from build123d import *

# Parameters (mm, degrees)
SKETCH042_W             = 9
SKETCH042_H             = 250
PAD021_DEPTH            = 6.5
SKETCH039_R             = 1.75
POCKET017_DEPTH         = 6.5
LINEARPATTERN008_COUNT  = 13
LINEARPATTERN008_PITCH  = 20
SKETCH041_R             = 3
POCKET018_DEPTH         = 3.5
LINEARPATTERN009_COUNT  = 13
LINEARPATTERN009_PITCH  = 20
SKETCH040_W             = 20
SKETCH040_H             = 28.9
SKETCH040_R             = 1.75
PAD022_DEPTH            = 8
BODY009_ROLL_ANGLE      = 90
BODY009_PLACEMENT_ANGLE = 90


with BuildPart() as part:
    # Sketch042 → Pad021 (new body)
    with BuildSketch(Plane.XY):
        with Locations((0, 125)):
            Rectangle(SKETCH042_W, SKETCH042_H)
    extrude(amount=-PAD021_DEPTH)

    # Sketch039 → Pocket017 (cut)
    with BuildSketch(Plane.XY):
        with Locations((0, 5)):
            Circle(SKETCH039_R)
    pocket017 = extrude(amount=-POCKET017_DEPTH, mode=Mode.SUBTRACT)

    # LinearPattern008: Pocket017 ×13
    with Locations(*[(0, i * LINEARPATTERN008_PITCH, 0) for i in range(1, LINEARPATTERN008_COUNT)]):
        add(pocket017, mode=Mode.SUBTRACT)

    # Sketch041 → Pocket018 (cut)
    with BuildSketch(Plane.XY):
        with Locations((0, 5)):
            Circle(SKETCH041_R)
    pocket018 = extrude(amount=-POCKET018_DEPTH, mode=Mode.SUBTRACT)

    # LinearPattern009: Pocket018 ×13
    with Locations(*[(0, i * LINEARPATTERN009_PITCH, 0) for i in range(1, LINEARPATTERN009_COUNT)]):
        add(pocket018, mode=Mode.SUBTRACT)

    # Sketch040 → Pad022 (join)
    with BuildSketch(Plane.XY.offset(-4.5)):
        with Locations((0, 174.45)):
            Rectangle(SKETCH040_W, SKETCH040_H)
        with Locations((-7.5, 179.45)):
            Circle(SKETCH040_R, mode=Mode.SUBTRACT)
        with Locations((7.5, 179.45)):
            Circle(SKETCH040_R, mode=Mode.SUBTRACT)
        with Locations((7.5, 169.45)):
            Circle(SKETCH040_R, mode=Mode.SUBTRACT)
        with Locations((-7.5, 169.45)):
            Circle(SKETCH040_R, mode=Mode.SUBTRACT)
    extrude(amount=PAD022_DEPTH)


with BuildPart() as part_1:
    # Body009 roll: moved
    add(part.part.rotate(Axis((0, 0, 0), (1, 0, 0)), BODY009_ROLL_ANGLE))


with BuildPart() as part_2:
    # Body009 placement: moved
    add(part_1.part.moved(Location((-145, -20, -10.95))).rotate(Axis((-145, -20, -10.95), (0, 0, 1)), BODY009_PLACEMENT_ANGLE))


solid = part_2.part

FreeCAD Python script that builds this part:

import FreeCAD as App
import Part
import Sketcher
from FreeCAD import Vector
Q = App.Units.Quantity

doc = App.newDocument("Part")
body = doc.addObject("PartDesign::Body", "Body")

sketch1 = body.newObject("Sketcher::SketchObject", "Sketch")
sketch1.AttachmentSupport = (doc.getObject("XY_Plane"), [""])
sketch1.MapMode = "FlatFace"
sketch1.addGeometry(Part.LineSegment(Vector(-4, 250, 0), Vector(-4, 0, 0)), False)
sketch1.addGeometry(Part.LineSegment(Vector(-4, 0, 0), Vector(4, 0, 0)), False)
sketch1.addGeometry(Part.LineSegment(Vector(4, 0, 0), Vector(4, 250, 0)), False)
sketch1.addGeometry(Part.LineSegment(Vector(4, 250, 0), Vector(-4, 250, 0)), False)
sketch1.addConstraint(Sketcher.Constraint("Coincident", 0, 2, 1, 1))
sketch1.addConstraint(Sketcher.Constraint("Coincident", 1, 2, 2, 1))
sketch1.addConstraint(Sketcher.Constraint("Coincident", 2, 2, 3, 1))
sketch1.addConstraint(Sketcher.Constraint("Coincident", 3, 2, 0, 1))
sketch1.addConstraint(Sketcher.Constraint("Vertical", 0))
sketch1.addConstraint(Sketcher.Constraint("Horizontal", 1))
sketch1.addConstraint(Sketcher.Constraint("Vertical", 2))
sketch1.addConstraint(Sketcher.Constraint("Horizontal", 3))
sketch1.addConstraint(Sketcher.Constraint("Symmetric", 0, 2, 1, 2, -1, 1))
sketch1.addConstraint(Sketcher.Constraint("DistanceX", 1, 1, 1, 2, Q("9 mm")))
sketch1.addConstraint(Sketcher.Constraint("DistanceY", 0, 2, 0, 1, Q("250 mm")))
pad1 = body.newObject("PartDesign::Pad", "Pad")
pad1.Profile = sketch1
pad1.Length = 6.5
pad1.Reversed = True

sketch2 = body.newObject("Sketcher::SketchObject", "Sketch001")
sketch2.AttachmentSupport = (doc.getObject("XY_Plane"), [""])
sketch2.MapMode = "FlatFace"
sketch2.addGeometry(Part.Circle(Vector(0, 5, 0), Vector(0, 0, 1), 1.8), False)
sketch2.addConstraint(Sketcher.Constraint("PointOnObject", 0, 3, -2))
sketch2.addConstraint(Sketcher.Constraint("Diameter", 0, Q("3.5 mm")))
sketch2.addConstraint(Sketcher.Constraint("DistanceY", -1, 1, 0, 3, Q("5 mm")))
pocket1 = body.newObject("PartDesign::Pocket", "Pocket")
pocket1.Profile = sketch2
pocket1.Length = 6.5
doc.recompute()

linearpattern = body.newObject("PartDesign::LinearPattern", "LinearPattern")
linearpattern.Originals = [pocket1]
linearpattern.Direction = (doc.getObject("Y_Axis"), [""])
linearpattern.Mode = "offset"
linearpattern.Offset = 20
linearpattern.Occurrences = 13
body.Tip = linearpattern

sketch3 = body.newObject("Sketcher::SketchObject", "Sketch002")
sketch3.AttachmentSupport = (doc.getObject("XY_Plane"), [""])
sketch3.MapMode = "FlatFace"
sketch3.addGeometry(Part.Circle(Vector(0, 5, 0), Vector(0, 0, 1), 3), False)
sketch3.addConstraint(Sketcher.Constraint("PointOnObject", 0, 3, -2))
sketch3.addConstraint(Sketcher.Constraint("Diameter", 0, Q("6 mm")))
sketch3.addConstraint(Sketcher.Constraint("DistanceY", -1, 1, 0, 3, Q("5 mm")))
pocket2 = body.newObject("PartDesign::Pocket", "Pocket001")
pocket2.Profile = sketch3
pocket2.Length = 3.5
doc.recompute()

linearpattern2 = body.newObject("PartDesign::LinearPattern", "LinearPattern001")
linearpattern2.Originals = [pocket2]
linearpattern2.Direction = (doc.getObject("Y_Axis"), [""])
linearpattern2.Mode = "offset"
linearpattern2.Offset = 20
linearpattern2.Occurrences = 13
body.Tip = linearpattern2

sketch4 = body.newObject("Sketcher::SketchObject", "Sketch003")
sketch4.AttachmentSupport = (doc.getObject("XY_Plane"), [""])
sketch4.MapMode = "FlatFace"
sketch4.AttachmentOffset = App.Placement(Vector(0, 0, -4.5), App.Rotation())
sketch4.addGeometry(Part.LineSegment(Vector(-10, 188.9, 0), Vector(-10, 160, 0)), False)
sketch4.addGeometry(Part.LineSegment(Vector(-10, 160, 0), Vector(10, 160, 0)), False)
sketch4.addGeometry(Part.LineSegment(Vector(10, 160, 0), Vector(10, 188.9, 0)), False)
sketch4.addGeometry(Part.LineSegment(Vector(10, 188.9, 0), Vector(-10, 188.9, 0)), False)
sketch4.addGeometry(Part.Circle(Vector(-7.5, 169.4, 0), Vector(0, 0, 1), 1.8), False)
sketch4.addGeometry(Part.Circle(Vector(7.5, 169.4, 0), Vector(0, 0, 1), 1.8), False)
sketch4.addGeometry(Part.Circle(Vector(-7.5, 179.4, 0), Vector(0, 0, 1), 1.8), False)
sketch4.addGeometry(Part.Circle(Vector(7.5, 179.4, 0), Vector(0, 0, 1), 1.8), False)
sketch4.addConstraint(Sketcher.Constraint("Coincident", 0, 2, 1, 1))
sketch4.addConstraint(Sketcher.Constraint("Coincident", 1, 2, 2, 1))
sketch4.addConstraint(Sketcher.Constraint("Coincident", 2, 2, 3, 1))
sketch4.addConstraint(Sketcher.Constraint("Coincident", 3, 2, 0, 1))
sketch4.addConstraint(Sketcher.Constraint("Vertical", 0))
sketch4.addConstraint(Sketcher.Constraint("Horizontal", 1))
sketch4.addConstraint(Sketcher.Constraint("Vertical", 2))
sketch4.addConstraint(Sketcher.Constraint("Horizontal", 3))
sketch4.addConstraint(Sketcher.Constraint("Equal", 4, 5))
sketch4.addConstraint(Sketcher.Constraint("Equal", 5, 6))
sketch4.addConstraint(Sketcher.Constraint("Equal", 6, 7))
sketch4.addConstraint(Sketcher.Constraint("Symmetric", 4, 3, 5, 3, -2))
sketch4.addConstraint(Sketcher.Constraint("Symmetric", 6, 3, 7, 3, -2))
sketch4.addConstraint(Sketcher.Constraint("Vertical", 4, 3, 6, 3))
sketch4.addConstraint(Sketcher.Constraint("Diameter", 4, Q("3.5 mm")))
sketch4.addConstraint(Sketcher.Constraint("DistanceX", 1, 1, 1, 2, Q("20 mm")))
sketch4.addConstraint(Sketcher.Constraint("DistanceY", 0, 2, 0, 1, Q("28.9 mm")))
sketch4.addConstraint(Sketcher.Constraint("DistanceX", 0, 2, -1, 1, Q("10 mm")))
sketch4.addConstraint(Sketcher.Constraint("DistanceY", -1, 1, 0, 2, Q("160 mm")))
sketch4.addConstraint(Sketcher.Constraint("DistanceX", 4, 3, 5, 3, Q("15 mm")))
sketch4.addConstraint(Sketcher.Constraint("DistanceY", 4, 3, 6, 3, Q("10 mm")))
sketch4.addConstraint(Sketcher.Constraint("DistanceY", -1, 1, 4, 3, Q("169.45 mm")))
pad2 = body.newObject("PartDesign::Pad", "Pad001")
pad2.Profile = sketch4
pad2.Length = 8
body2 = doc.addObject("PartDesign::Body", "Body001")
doc.recompute()

body.Placement = App.Placement(Vector(0, 0, 0), App.Rotation(Vector(1, 0, 0), 90))
boolean = body2.newObject("PartDesign::Boolean", "Boolean")
boolean.Type = "Fuse"
boolean.addObjects([body])
body3 = doc.addObject("PartDesign::Body", "Body002")
doc.recompute()

body2.Placement = App.Placement(Vector(-145, -20, -10.95), App.Rotation(Vector(0, 0, 1), 90))
boolean2 = body3.newObject("PartDesign::Boolean", "Boolean001")
boolean2.Type = "Fuse"
boolean2.addObjects([body2])

doc.recompute()
